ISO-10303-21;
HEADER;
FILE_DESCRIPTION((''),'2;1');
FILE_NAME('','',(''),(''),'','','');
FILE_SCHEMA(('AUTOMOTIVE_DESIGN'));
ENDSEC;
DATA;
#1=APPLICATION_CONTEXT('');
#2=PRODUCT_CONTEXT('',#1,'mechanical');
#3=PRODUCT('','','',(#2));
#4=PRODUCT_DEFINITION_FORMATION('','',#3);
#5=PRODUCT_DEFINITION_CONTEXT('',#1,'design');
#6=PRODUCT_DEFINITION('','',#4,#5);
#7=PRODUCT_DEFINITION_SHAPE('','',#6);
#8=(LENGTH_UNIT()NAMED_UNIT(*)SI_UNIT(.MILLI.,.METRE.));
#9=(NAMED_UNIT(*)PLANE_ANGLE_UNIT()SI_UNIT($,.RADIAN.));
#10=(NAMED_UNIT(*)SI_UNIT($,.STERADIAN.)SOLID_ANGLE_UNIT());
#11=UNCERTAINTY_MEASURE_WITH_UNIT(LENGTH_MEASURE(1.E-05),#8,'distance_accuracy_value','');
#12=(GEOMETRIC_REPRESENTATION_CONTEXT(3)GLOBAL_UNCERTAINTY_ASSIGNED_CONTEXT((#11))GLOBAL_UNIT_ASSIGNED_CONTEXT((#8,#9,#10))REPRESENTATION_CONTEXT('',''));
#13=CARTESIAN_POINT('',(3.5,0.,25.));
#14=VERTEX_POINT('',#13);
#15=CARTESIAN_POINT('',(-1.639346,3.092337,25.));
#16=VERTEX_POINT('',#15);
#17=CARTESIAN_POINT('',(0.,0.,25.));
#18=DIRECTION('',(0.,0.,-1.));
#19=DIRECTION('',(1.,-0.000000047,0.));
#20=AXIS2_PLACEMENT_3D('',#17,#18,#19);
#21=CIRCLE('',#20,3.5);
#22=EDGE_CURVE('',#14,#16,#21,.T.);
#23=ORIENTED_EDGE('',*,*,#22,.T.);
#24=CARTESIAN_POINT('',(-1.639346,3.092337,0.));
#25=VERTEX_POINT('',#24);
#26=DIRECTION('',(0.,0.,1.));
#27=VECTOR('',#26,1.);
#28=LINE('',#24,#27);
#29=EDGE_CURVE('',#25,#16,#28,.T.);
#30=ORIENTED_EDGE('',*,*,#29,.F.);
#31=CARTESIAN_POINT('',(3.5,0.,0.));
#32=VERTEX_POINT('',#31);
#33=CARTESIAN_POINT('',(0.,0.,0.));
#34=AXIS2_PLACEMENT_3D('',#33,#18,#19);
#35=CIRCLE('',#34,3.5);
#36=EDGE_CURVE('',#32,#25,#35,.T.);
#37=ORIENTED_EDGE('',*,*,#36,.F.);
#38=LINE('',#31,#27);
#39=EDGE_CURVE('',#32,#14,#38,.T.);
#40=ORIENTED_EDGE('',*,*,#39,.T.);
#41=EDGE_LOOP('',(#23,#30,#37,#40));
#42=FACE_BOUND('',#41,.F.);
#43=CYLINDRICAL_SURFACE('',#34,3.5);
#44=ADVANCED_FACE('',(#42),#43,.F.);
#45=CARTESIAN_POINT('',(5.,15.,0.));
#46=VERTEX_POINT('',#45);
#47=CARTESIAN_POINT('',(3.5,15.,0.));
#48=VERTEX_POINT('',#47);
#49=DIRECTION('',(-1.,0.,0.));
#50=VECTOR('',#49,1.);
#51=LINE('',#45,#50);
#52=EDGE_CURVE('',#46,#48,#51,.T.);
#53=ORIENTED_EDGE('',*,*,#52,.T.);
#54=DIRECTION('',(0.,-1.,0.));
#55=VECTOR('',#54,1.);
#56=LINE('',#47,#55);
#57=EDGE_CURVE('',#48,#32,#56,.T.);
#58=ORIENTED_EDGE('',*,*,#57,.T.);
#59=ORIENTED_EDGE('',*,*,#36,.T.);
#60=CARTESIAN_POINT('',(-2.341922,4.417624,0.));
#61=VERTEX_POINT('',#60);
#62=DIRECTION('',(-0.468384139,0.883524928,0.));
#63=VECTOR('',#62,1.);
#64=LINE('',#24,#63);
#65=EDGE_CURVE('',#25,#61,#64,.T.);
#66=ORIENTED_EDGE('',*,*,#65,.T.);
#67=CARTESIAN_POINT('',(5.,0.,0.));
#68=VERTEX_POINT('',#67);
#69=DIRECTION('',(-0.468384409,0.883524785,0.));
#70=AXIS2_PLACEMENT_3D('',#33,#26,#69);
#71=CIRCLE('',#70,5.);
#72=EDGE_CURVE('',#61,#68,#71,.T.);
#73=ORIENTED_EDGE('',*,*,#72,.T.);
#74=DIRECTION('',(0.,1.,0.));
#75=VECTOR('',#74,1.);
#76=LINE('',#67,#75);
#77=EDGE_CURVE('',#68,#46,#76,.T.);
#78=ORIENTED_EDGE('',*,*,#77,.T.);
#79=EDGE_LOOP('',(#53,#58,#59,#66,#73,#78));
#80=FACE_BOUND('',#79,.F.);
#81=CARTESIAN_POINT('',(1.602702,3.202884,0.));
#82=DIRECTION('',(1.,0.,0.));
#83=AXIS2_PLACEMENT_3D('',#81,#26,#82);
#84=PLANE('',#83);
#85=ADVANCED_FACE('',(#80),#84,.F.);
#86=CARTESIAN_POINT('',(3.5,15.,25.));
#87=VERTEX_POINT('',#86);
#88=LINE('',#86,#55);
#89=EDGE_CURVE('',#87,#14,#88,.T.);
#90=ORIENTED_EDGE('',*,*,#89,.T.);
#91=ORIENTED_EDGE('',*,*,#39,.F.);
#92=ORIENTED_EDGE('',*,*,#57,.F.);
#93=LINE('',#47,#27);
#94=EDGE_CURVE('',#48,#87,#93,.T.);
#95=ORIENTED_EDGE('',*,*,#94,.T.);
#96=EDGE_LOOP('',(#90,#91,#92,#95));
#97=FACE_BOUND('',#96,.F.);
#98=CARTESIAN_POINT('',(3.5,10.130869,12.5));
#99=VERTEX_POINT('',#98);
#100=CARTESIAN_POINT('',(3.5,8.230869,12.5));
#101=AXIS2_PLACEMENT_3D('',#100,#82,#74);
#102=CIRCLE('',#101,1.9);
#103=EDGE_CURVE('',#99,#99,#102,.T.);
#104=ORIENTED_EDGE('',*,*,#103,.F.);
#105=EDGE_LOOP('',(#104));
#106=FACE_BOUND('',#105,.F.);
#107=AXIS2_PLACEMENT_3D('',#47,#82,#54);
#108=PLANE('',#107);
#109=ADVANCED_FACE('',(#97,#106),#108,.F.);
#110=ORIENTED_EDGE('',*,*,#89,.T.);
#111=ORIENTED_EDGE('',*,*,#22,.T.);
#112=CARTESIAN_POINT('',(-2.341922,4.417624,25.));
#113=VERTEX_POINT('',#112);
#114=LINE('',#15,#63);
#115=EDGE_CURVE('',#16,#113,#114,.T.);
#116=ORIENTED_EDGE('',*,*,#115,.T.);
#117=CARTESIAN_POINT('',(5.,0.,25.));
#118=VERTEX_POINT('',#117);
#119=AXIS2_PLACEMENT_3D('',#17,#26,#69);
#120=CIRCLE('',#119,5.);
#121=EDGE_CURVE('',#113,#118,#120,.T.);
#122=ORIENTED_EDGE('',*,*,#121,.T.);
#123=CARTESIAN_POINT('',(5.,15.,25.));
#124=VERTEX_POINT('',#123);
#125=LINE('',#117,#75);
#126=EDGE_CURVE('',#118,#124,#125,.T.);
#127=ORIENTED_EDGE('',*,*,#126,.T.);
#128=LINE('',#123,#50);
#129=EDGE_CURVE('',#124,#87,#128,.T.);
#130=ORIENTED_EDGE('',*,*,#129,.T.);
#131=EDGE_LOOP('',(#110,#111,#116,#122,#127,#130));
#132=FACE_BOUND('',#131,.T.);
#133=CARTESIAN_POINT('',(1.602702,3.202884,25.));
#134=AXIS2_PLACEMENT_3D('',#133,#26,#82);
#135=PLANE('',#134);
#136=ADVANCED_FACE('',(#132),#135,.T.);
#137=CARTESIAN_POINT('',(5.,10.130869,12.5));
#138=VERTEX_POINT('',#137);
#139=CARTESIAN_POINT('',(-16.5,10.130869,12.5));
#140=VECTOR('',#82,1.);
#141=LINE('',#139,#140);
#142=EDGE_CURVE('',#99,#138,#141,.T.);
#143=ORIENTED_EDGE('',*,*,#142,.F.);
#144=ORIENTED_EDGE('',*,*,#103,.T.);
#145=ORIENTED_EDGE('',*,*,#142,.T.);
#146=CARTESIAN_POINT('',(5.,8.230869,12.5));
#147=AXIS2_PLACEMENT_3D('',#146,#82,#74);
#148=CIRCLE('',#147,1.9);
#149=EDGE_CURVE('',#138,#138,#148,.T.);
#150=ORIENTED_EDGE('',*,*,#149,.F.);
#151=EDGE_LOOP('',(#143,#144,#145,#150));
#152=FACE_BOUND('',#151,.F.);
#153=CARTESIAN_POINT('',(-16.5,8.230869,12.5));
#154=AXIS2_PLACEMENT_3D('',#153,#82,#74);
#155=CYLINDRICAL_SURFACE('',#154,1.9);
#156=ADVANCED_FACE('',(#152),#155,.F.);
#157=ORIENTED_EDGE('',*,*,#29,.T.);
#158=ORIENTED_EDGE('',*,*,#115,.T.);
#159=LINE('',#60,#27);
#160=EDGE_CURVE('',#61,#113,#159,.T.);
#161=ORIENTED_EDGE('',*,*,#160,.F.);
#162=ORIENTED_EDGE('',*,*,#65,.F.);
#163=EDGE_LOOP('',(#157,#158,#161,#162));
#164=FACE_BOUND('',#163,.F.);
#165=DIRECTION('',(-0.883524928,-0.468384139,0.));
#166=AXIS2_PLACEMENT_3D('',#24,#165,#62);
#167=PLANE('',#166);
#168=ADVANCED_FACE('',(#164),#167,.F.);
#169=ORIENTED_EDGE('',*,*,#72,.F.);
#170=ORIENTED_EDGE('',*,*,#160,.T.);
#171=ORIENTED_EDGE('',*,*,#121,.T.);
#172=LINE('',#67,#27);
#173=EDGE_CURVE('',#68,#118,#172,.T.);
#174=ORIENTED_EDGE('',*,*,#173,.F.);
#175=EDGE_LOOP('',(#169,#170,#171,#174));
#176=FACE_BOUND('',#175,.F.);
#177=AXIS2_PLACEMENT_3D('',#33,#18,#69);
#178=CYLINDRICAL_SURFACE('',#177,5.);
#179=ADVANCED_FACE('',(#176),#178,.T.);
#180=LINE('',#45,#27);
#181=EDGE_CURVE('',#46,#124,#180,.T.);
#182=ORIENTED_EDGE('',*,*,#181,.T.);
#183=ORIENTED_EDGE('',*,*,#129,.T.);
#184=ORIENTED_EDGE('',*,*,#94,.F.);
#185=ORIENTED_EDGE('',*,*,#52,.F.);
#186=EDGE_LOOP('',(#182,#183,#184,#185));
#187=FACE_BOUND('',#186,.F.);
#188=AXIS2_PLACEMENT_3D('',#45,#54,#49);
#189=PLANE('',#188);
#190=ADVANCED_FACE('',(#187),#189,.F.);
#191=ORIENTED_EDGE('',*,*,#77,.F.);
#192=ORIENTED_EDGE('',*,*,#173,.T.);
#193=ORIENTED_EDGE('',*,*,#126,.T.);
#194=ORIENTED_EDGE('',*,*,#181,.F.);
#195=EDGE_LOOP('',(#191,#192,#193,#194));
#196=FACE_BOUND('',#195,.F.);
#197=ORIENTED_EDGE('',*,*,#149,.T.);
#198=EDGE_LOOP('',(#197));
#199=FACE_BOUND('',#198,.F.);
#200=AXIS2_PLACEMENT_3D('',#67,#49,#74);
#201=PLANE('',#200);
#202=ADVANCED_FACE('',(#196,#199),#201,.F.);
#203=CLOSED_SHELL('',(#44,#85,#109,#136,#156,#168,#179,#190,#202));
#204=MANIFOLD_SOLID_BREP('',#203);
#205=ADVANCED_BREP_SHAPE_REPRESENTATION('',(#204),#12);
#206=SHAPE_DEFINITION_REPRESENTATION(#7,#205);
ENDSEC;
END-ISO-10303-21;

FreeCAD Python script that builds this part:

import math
import FreeCAD as App
import Part
import Sketcher
from FreeCAD import Vector
Q = App.Units.Quantity

doc = App.newDocument("Part")
params = doc.addObject("Spreadsheet::Sheet", "Params")
for row, (alias, value) in enumerate([
    ("sketch1_radius", "5 mm"),
    ("sketch1_radius2", "3.5 mm"),
    ("sketch1_height", "15 mm"),
    ("pad1_length", "25 mm"),
    ("sketch2_diameter", "3.8 mm"),
    ("hole_diameter", "3.8 mm"),
    ("hole_depth", "20 mm"),
], start=1):
    params.set(f"A{row}", alias)
    params.set(f"B{row}", "=" + value)
    params.setAlias(f"B{row}", alias)

body = doc.addObject("PartDesign::Body", "Body")

sketch1 = doc.addObject("Sketcher::SketchObject", "Sketch")
body.addObject(sketch1)
sketch1.AttachmentSupport = (doc.XY_Plane, [""])
sketch1.MapMode = "FlatFace"
sketch1.addGeometry([
    Part.ArcOfCircle(Part.Circle(Vector(0, 0, 0), Vector(0, 0, 1), 3.5), math.radians(118), math.radians(360)),
    Part.LineSegment(Vector(-1.6, 3.1, 0), Vector(-2.3, 4.4, 0)),
    Part.ArcOfCircle(Part.Circle(Vector(0, 0, 0), Vector(0, 0, 1), 5), math.radians(118), math.radians(360)),
    Part.LineSegment(Vector(5, 0, 0), Vector(5, 15, 0)),
    Part.LineSegment(Vector(5, 15, 0), Vector(3.5, 15, 0)),
    Part.LineSegment(Vector(3.5, 15, 0), Vector(3.5, 0, 0)),
], False)
sketch1.addConstraint([
    Sketcher.Constraint("Coincident", 0, 1, 1, 1),
    Sketcher.Constraint("Coincident", 1, 2, 2, 1),
    Sketcher.Constraint("Tangent", 2, 2, 3, 1),
    Sketcher.Constraint("Coincident", 3, 2, 4, 1),
    Sketcher.Constraint("Coincident", 4, 2, 5, 1),
    Sketcher.Constraint("Tangent", 5, 2, 0, 2),
    Sketcher.Constraint("Vertical", 3),
    Sketcher.Constraint("Horizontal", 4),
    Sketcher.Constraint("Vertical", 5),
    Sketcher.Constraint("Coincident", 0, 3, -1, 1),
    Sketcher.Constraint("Coincident", 2, 3, -1, 1),
    Sketcher.Constraint("Radius", 2, Q("5 mm")),
    Sketcher.Constraint("Radius", 0, Q("3.5 mm")),
    Sketcher.Constraint("DistanceY", 3, 1, 3, 2, Q("15 mm")),
    Sketcher.Constraint("DistanceX", 1, 2, -1, 1, Q("2.341922 mm")),
    Sketcher.Constraint("DistanceX", 0, 1, -1, 1, Q("1.639346 mm")),
])
sketch1.setExpression("Constraints[11]", "Params.sketch1_radius")
sketch1.setExpression("Constraints[12]", "Params.sketch1_radius2")
sketch1.setExpression("Constraints[13]", "Params.sketch1_height")
pad1 = doc.addObject("PartDesign::Pad", "Pad")
body.addObject(pad1)
pad1.Profile = sketch1
pad1.setExpression("Length", "Params.pad1_length")

sketch2 = doc.addObject("Sketcher::SketchObject", "Sketch001")
body.addObject(sketch2)
sketch2.AttachmentSupport = (doc.YZ_Plane, [""])
sketch2.MapMode = "FlatFace"
sketch2.AttachmentOffset = App.Placement(Vector(0, 0, 3.5), App.Rotation())
sketch2.addGeometry(Part.Circle(Vector(8.2, 12.5, 0), Vector(0, 0, 1), 1.9), False)
sketch2.addConstraint([
    Sketcher.Constraint("Diameter", 0, Q("3.8 mm")),
    Sketcher.Constraint("DistanceY", -1, 1, 0, 3, Q("12.5 mm")),
    Sketcher.Constraint("DistanceX", -1, 1, 0, 3, Q("8.230869 mm")),
])
sketch2.setExpression("Constraints[0]", "Params.sketch2_diameter")
doc.recompute()
hole = doc.addObject("PartDesign::Hole", "Hole")
body.addObject(hole)
hole.Profile = sketch2
hole.ThreadType = "None"
hole.setExpression("Diameter", "Params.hole_diameter")
hole.DepthType = "Dimension"
hole.setExpression("Depth", "Params.hole_depth")
hole.DrillPoint = "Flat"
hole.Reversed = True

doc.recompute()
